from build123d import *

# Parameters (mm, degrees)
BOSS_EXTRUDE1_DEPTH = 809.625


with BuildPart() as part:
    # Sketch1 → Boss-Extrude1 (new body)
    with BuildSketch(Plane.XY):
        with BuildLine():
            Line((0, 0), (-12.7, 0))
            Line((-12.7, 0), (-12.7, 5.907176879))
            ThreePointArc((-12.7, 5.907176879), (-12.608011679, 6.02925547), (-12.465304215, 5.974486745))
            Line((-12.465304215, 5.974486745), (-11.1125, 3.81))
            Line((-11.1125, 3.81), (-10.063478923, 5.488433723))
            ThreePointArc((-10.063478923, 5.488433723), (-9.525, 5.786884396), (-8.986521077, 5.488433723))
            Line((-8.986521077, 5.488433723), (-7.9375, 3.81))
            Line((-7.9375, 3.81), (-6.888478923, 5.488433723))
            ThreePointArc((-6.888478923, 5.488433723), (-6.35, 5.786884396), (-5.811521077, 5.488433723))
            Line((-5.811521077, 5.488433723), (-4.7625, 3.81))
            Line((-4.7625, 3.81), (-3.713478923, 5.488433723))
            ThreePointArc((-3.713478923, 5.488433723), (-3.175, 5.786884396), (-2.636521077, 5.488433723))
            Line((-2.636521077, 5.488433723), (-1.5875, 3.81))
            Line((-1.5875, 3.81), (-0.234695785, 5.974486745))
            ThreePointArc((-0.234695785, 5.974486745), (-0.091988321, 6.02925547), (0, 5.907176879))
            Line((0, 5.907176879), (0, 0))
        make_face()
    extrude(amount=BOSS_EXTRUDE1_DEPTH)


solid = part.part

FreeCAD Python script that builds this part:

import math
import FreeCAD as App
import Part
import Sketcher
from FreeCAD import Vector
Q = App.Units.Quantity

doc = App.newDocument("Part")
body = doc.addObject("PartDesign::Body", "Body")

sketch1 = doc.addObject("Sketcher::SketchObject", "Sketch")
body.addObject(sketch1)
sketch1.AttachmentSupport = (doc.XY_Plane, [""])
sketch1.MapMode = "FlatFace"
sketch1.addGeometry([
    Part.LineSegment(Vector(-12.7, 0, 0), Vector(0, 0, 0)),
    Part.LineSegment(Vector(0, 0, 0), Vector(0, 5.91, 0)),
    Part.ArcOfCircle(Part.Circle(Vector(-0.13, 5.91, 0), Vector(0, 0, 1), 0.13), math.radians(0), math.radians(148)),
    Part.LineSegment(Vector(-0.23, 5.97, 0), Vector(-1.59, 3.81, 0)),
    Part.LineSegment(Vector(-1.59, 3.81, 0), Vector(-2.64, 5.49, 0)),
    Part.ArcOfCircle(Part.Circle(Vector(-3.17, 5.15, 0), Vector(0, 0, 1), 0.64), math.radians(32), math.radians(148)),
    Part.LineSegment(Vector(-3.71, 5.49, 0), Vector(-4.76, 3.81, 0)),
    Part.LineSegment(Vector(-4.76, 3.81, 0), Vector(-5.81, 5.49, 0)),
    Part.ArcOfCircle(Part.Circle(Vector(-6.35, 5.15, 0), Vector(0, 0, 1), 0.64), math.radians(32), math.radians(148)),
    Part.LineSegment(Vector(-6.89, 5.49, 0), Vector(-7.94, 3.81, 0)),
    Part.LineSegment(Vector(-7.94, 3.81, 0), Vector(-8.99, 5.49, 0)),
    Part.ArcOfCircle(Part.Circle(Vector(-9.53, 5.15, 0), Vector(0, 0, 1), 0.64), math.radians(32), math.radians(148)),
    Part.LineSegment(Vector(-10.06, 5.49, 0), Vector(-11.11, 3.81, 0)),
    Part.LineSegment(Vector(-11.11, 3.81, 0), Vector(-12.47, 5.97, 0)),
    Part.ArcOfCircle(Part.Circle(Vector(-12.57, 5.91, 0), Vector(0, 0, 1), 0.13), math.radians(32), math.radians(180)),
    Part.LineSegment(Vector(-12.7, 5.91, 0), Vector(-12.7, 0, 0)),
], False)
sketch1.addConstraint([
    Sketcher.Constraint("Coincident", 0, 2, 1, 1),
    Sketcher.Constraint("Tangent", 1, 2, 2, 1),
    Sketcher.Constraint("Tangent", 2, 2, 3, 1),
    Sketcher.Constraint("Coincident", 3, 2, 4, 1),
    Sketcher.Constraint("Tangent", 4, 2, 5, 1),
    Sketcher.Constraint("Tangent", 5, 2, 6, 1),
    Sketcher.Constraint("Coincident", 6, 2, 7, 1),
    Sketcher.Constraint("Tangent", 7, 2, 8, 1),
    Sketcher.Constraint("Tangent", 8, 2, 9, 1),
    Sketcher.Constraint("Coincident", 9, 2, 10, 1),
    Sketcher.Constraint("Tangent", 10, 2, 11, 1),
    Sketcher.Constraint("Tangent", 11, 2, 12, 1),
    Sketcher.Constraint("Coincident", 12, 2, 13, 1),
    Sketcher.Constraint("Tangent", 13, 2, 14, 1),
    Sketcher.Constraint("Tangent", 14, 2, 15, 1),
    Sketcher.Constraint("Coincident", 15, 2, 0, 1),
    Sketcher.Constraint("Horizontal", 0),
    Sketcher.Constraint("Vertical", 1),
    Sketcher.Constraint("Vertical", 15),
    Sketcher.Constraint("Coincident", 0, 2, -1, 1),
    Sketcher.Constraint("Equal", 5, 8),
    Sketcher.Constraint("Equal", 8, 11),
    Sketcher.Constraint("Equal", 2, 14),
    Sketcher.Constraint("Parallel", 3, 6),
    Sketcher.Constraint("Parallel", 4, 7),
    Sketcher.Constraint("Parallel", 6, 9),
    Sketcher.Constraint("Parallel", 7, 10),
    Sketcher.Constraint("Parallel", 9, 12),
    Sketcher.Constraint("Parallel", 10, 13),
    Sketcher.Constraint("Horizontal", 5, 3, 8, 3),
    Sketcher.Constraint("Horizontal", 8, 3, 11, 3),
    Sketcher.Constraint("Horizontal", 2, 3, 14, 3),
    Sketcher.Constraint("Horizontal", 4, 2, 5, 2),
    Sketcher.Constraint("Horizontal", 3, 2, 6, 2),
    Sketcher.Constraint("Horizontal", 6, 2, 9, 2),
    Sketcher.Constraint("Horizontal", 9, 2, 12, 2),
    Sketcher.Constraint("DistanceX", 0, 1, 0, 2, Q("0.5 in")),
    Sketcher.Constraint("Radius", 2, Q("0.005 in")),
    Sketcher.Constraint("Radius", 5, Q("0.025 in")),
    Sketcher.Constraint("DistanceY", -1, 1, 3, 2, Q("0.15 in")),
    Sketcher.Constraint("DistanceX", 5, 3, 2, 3, Q("0.12 in")),
    Sketcher.Constraint("DistanceX", 4, 2, -1, 1, Q("0.1038 in")),
])
pad1 = doc.addObject("PartDesign::Pad", "Pad")
body.addObject(pad1)
pad1.Profile = sketch1
pad1.Length = Q("31.875 in")

doc.recompute()
